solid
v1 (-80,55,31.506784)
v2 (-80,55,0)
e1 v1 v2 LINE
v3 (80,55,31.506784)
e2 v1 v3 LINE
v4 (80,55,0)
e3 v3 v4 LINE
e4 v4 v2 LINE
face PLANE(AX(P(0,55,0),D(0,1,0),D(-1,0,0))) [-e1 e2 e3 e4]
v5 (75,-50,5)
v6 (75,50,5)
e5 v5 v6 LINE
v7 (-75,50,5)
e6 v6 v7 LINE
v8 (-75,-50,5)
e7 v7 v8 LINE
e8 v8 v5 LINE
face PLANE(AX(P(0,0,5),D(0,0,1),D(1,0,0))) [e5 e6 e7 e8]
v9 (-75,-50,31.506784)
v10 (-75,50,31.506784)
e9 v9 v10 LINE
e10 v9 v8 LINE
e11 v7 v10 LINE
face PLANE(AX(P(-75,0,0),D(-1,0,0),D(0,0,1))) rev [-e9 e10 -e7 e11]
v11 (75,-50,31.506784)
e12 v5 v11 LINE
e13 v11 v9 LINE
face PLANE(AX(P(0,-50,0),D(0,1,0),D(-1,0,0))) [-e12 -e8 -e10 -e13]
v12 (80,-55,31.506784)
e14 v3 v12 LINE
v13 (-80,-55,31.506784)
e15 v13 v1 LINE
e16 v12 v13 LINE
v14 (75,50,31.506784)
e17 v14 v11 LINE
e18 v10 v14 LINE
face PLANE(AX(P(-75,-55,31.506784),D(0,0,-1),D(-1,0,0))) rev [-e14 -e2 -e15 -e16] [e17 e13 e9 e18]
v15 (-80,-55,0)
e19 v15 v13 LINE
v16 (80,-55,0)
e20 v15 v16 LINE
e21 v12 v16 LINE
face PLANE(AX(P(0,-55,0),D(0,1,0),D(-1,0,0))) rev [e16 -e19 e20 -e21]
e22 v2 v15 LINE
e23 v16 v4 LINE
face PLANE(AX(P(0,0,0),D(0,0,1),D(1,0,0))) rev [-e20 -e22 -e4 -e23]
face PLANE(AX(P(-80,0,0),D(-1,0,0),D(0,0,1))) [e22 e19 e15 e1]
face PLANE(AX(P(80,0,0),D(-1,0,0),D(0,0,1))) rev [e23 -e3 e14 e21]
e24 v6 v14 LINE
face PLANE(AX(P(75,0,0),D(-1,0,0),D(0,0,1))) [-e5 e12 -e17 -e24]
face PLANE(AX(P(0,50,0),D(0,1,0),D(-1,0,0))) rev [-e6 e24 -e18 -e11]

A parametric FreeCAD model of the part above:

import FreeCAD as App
import Part
import Sketcher

doc = App.newDocument("Part")
body = doc.addObject("PartDesign::Body", "Body")

# Sketch on XY plane
sketch1 = doc.addObject("Sketcher::SketchObject", "Sketch")
body.addObject(sketch1)
sketch1.AttachmentSupport = (doc.XY_Plane, [""])
sketch1.MapMode = "FlatFace"
sketch1.addGeometry([
    Part.LineSegment(App.Vector(-75, 50, 0), App.Vector(-75, -50, 0)),
    Part.LineSegment(App.Vector(-75, -50, 0), App.Vector(75, -50, 0)),
    Part.LineSegment(App.Vector(75, -50, 0), App.Vector(75, 50, 0)),
    Part.LineSegment(App.Vector(75, 50, 0), App.Vector(-75, 50, 0)),
], False)
sketch1.addConstraint([
    Sketcher.Constraint("Coincident", 0, 2, 1, 1),
    Sketcher.Constraint("Coincident", 1, 2, 2, 1),
    Sketcher.Constraint("Coincident", 2, 2, 3, 1),
    Sketcher.Constraint("Coincident", 3, 2, 0, 1),
    Sketcher.Constraint("Vertical", 0),
    Sketcher.Constraint("Horizontal", 1),
    Sketcher.Constraint("Vertical", 2),
    Sketcher.Constraint("Horizontal", 3),
    Sketcher.Constraint("Symmetric", 0, 2, 2, 2, -1, 1),
    Sketcher.Constraint("DistanceX", 1, 1, 1, 2, 150.0),
    Sketcher.Constraint("DistanceY", 0, 2, 0, 1, 100.0),
])
pad1 = doc.addObject("PartDesign::Pad", "Pad")
body.addObject(pad1)
pad1.Profile = sketch1
pad1.Length = 5

# Sketch on XZ plane
sketch2 = doc.addObject("Sketcher::SketchObject", "Sketch001")
body.addObject(sketch2)
sketch2.AttachmentSupport = (doc.XZ_Plane, [""])
sketch2.MapMode = "FlatFace"
sketch2.AttachmentOffset = App.Placement(App.Vector(0, 0, 50), App.Rotation())
sketch2.addGeometry([
    Part.LineSegment(App.Vector(-75, 31.506784, 0), App.Vector(-75, 0, 0)),
    Part.LineSegment(App.Vector(-75, 0, 0), App.Vector(75, 0, 0)),
    Part.LineSegment(App.Vector(75, 0, 0), App.Vector(75, 31.506784, 0)),
    Part.LineSegment(App.Vector(75, 31.506784, 0), App.Vector(-75, 31.506784, 0)),
], False)
sketch2.addConstraint([
    Sketcher.Constraint("Coincident", 0, 2, 1, 1),
    Sketcher.Constraint("Coincident", 1, 2, 2, 1),
    Sketcher.Constraint("Coincident", 2, 2, 3, 1),
    Sketcher.Constraint("Coincident", 3, 2, 0, 1),
    Sketcher.Constraint("Vertical", 0),
    Sketcher.Constraint("Horizontal", 1),
    Sketcher.Constraint("Vertical", 2),
    Sketcher.Constraint("Horizontal", 3),
    Sketcher.Constraint("Symmetric", 0, 2, 1, 2, -1, 1),
    Sketcher.Constraint("DistanceX", 1, 1, 1, 2, 150.0),
    Sketcher.Constraint("DistanceY", 0, 2, 0, 1, 31.506784),
])
pad2 = doc.addObject("PartDesign::Pad", "Pad001")
body.addObject(pad2)
pad2.Profile = sketch2
pad2.Length = 5

# Sketch on YZ plane
sketch3 = doc.addObject("Sketcher::SketchObject", "Sketch002")
body.addObject(sketch3)
sketch3.AttachmentSupport = (doc.YZ_Plane, [""])
sketch3.MapMode = "FlatFace"
sketch3.AttachmentOffset = App.Placement(App.Vector(0, 0, 75), App.Rotation())
sketch3.addGeometry([
    Part.LineSegment(App.Vector(50, 31.506784, 0), App.Vector(-55, 31.506784, 0)),
    Part.LineSegment(App.Vector(-55, 31.506784, 0), App.Vector(-55, 0, 0)),
    Part.LineSegment(App.Vector(-55, 0, 0), App.Vector(50, 0, 0)),
    Part.LineSegment(App.Vector(50, 0, 0), App.Vector(50, 31.506784, 0)),
], False)
sketch3.addConstraint([
    Sketcher.Constraint("Coincident", 0, 2, 1, 1),
    Sketcher.Constraint("Coincident", 1, 2, 2, 1),
    Sketcher.Constraint("Coincident", 2, 2, 3, 1),
    Sketcher.Constraint("Coincident", 3, 2, 0, 1),
    Sketcher.Constraint("Horizontal", 0),
    Sketcher.Constraint("Vertical", 1),
    Sketcher.Constraint("Horizontal", 2),
    Sketcher.Constraint("Vertical", 3),
    Sketcher.Constraint("PointOnObject", 1, 2, -1),
    Sketcher.Constraint("DistanceX", 0, 2, 0, 1, 105.0),
    Sketcher.Constraint("DistanceX", 0, 2, -1, 1, 55.0),
    Sketcher.Constraint("DistanceY", 1, 2, 1, 1, 31.506784),
])
pad3 = doc.addObject("PartDesign::Pad", "Pad002")
body.addObject(pad3)
pad3.Profile = sketch3
pad3.Length = 5

# Sketch on XZ plane
sketch4 = doc.addObject("Sketcher::SketchObject", "Sketch003")
body.addObject(sketch4)
sketch4.AttachmentSupport = (doc.XZ_Plane, [""])
sketch4.MapMode = "FlatFace"
sketch4.AttachmentOffset = App.Placement(App.Vector(0, 0, -50), App.Rotation())
sketch4.addGeometry([
    Part.LineSegment(App.Vector(-75, 0, 0), App.Vector(-75, 31.506784, 0)),
    Part.LineSegment(App.Vector(-75, 31.506784, 0), App.Vector(80, 31.506784, 0)),
    Part.LineSegment(App.Vector(80, 31.506784, 0), App.Vector(80, 0, 0)),
    Part.LineSegment(App.Vector(80, 0, 0), App.Vector(-75, 0, 0)),
], False)
sketch4.addConstraint([
    Sketcher.Constraint("Coincident", 0, 2, 1, 1),
    Sketcher.Constraint("Coincident", 1, 2, 2, 1),
    Sketcher.Constraint("Coincident", 2, 2, 3, 1),
    Sketcher.Constraint("Coincident", 3, 2, 0, 1),
    Sketcher.Constraint("Vertical", 0),
    Sketcher.Constraint("Horizontal", 1),
    Sketcher.Constraint("Vertical", 2),
    Sketcher.Constraint("Horizontal", 3),
    Sketcher.Constraint("PointOnObject", 2, 2, -1),
    Sketcher.Constraint("DistanceX", 1, 1, 1, 2, 155.0),
    Sketcher.Constraint("DistanceX", 0, 2, -1, 1, 75.0),
    Sketcher.Constraint("DistanceY", 0, 1, 0, 2, 31.506784),
])
pad4 = doc.addObject("PartDesign::Pad", "Pad003")
body.addObject(pad4)
pad4.Profile = sketch4
pad4.Length = 5
pad4.Reversed = True

# Sketch on YZ plane
sketch5 = doc.addObject("Sketcher::SketchObject", "Sketch004")
body.addObject(sketch5)
sketch5.AttachmentSupport = (doc.YZ_Plane, [""])
sketch5.MapMode = "FlatFace"
sketch5.AttachmentOffset = App.Placement(App.Vector(0, 0, -75), App.Rotation())
sketch5.addGeometry([
    Part.LineSegment(App.Vector(55, 0, 0), App.Vector(-55, 0, 0)),
    Part.LineSegment(App.Vector(-55, 0, 0), App.Vector(-55, 31.506784, 0)),
    Part.LineSegment(App.Vector(-55, 31.506784, 0), App.Vector(55, 31.506784, 0)),
    Part.LineSegment(App.Vector(55, 31.506784, 0), App.Vector(55, 0, 0)),
], False)
sketch5.addConstraint([
    Sketcher.Constraint("Coincident", 0, 2, 1, 1),
    Sketcher.Constraint("Coincident", 1, 2, 2, 1),
    Sketcher.Constraint("Coincident", 2, 2, 3, 1),
    Sketcher.Constraint("Coincident", 3, 2, 0, 1),
    Sketcher.Constraint("Horizontal", 0),
    Sketcher.Constraint("Vertical", 1),
    Sketcher.Constraint("Horizontal", 2),
    Sketcher.Constraint("Vertical", 3),
    Sketcher.Constraint("Symmetric", 0, 2, 3, 2, -1, 1),
    Sketcher.Constraint("DistanceX", 0, 2, 0, 1, 110.0),
    Sketcher.Constraint("DistanceY", 1, 1, 1, 2, 31.506784),
])
pad5 = doc.addObject("PartDesign::Pad", "Pad004")
body.addObject(pad5)
pad5.Profile = sketch5
pad5.Length = 5
pad5.Reversed = True

doc.recompute()
